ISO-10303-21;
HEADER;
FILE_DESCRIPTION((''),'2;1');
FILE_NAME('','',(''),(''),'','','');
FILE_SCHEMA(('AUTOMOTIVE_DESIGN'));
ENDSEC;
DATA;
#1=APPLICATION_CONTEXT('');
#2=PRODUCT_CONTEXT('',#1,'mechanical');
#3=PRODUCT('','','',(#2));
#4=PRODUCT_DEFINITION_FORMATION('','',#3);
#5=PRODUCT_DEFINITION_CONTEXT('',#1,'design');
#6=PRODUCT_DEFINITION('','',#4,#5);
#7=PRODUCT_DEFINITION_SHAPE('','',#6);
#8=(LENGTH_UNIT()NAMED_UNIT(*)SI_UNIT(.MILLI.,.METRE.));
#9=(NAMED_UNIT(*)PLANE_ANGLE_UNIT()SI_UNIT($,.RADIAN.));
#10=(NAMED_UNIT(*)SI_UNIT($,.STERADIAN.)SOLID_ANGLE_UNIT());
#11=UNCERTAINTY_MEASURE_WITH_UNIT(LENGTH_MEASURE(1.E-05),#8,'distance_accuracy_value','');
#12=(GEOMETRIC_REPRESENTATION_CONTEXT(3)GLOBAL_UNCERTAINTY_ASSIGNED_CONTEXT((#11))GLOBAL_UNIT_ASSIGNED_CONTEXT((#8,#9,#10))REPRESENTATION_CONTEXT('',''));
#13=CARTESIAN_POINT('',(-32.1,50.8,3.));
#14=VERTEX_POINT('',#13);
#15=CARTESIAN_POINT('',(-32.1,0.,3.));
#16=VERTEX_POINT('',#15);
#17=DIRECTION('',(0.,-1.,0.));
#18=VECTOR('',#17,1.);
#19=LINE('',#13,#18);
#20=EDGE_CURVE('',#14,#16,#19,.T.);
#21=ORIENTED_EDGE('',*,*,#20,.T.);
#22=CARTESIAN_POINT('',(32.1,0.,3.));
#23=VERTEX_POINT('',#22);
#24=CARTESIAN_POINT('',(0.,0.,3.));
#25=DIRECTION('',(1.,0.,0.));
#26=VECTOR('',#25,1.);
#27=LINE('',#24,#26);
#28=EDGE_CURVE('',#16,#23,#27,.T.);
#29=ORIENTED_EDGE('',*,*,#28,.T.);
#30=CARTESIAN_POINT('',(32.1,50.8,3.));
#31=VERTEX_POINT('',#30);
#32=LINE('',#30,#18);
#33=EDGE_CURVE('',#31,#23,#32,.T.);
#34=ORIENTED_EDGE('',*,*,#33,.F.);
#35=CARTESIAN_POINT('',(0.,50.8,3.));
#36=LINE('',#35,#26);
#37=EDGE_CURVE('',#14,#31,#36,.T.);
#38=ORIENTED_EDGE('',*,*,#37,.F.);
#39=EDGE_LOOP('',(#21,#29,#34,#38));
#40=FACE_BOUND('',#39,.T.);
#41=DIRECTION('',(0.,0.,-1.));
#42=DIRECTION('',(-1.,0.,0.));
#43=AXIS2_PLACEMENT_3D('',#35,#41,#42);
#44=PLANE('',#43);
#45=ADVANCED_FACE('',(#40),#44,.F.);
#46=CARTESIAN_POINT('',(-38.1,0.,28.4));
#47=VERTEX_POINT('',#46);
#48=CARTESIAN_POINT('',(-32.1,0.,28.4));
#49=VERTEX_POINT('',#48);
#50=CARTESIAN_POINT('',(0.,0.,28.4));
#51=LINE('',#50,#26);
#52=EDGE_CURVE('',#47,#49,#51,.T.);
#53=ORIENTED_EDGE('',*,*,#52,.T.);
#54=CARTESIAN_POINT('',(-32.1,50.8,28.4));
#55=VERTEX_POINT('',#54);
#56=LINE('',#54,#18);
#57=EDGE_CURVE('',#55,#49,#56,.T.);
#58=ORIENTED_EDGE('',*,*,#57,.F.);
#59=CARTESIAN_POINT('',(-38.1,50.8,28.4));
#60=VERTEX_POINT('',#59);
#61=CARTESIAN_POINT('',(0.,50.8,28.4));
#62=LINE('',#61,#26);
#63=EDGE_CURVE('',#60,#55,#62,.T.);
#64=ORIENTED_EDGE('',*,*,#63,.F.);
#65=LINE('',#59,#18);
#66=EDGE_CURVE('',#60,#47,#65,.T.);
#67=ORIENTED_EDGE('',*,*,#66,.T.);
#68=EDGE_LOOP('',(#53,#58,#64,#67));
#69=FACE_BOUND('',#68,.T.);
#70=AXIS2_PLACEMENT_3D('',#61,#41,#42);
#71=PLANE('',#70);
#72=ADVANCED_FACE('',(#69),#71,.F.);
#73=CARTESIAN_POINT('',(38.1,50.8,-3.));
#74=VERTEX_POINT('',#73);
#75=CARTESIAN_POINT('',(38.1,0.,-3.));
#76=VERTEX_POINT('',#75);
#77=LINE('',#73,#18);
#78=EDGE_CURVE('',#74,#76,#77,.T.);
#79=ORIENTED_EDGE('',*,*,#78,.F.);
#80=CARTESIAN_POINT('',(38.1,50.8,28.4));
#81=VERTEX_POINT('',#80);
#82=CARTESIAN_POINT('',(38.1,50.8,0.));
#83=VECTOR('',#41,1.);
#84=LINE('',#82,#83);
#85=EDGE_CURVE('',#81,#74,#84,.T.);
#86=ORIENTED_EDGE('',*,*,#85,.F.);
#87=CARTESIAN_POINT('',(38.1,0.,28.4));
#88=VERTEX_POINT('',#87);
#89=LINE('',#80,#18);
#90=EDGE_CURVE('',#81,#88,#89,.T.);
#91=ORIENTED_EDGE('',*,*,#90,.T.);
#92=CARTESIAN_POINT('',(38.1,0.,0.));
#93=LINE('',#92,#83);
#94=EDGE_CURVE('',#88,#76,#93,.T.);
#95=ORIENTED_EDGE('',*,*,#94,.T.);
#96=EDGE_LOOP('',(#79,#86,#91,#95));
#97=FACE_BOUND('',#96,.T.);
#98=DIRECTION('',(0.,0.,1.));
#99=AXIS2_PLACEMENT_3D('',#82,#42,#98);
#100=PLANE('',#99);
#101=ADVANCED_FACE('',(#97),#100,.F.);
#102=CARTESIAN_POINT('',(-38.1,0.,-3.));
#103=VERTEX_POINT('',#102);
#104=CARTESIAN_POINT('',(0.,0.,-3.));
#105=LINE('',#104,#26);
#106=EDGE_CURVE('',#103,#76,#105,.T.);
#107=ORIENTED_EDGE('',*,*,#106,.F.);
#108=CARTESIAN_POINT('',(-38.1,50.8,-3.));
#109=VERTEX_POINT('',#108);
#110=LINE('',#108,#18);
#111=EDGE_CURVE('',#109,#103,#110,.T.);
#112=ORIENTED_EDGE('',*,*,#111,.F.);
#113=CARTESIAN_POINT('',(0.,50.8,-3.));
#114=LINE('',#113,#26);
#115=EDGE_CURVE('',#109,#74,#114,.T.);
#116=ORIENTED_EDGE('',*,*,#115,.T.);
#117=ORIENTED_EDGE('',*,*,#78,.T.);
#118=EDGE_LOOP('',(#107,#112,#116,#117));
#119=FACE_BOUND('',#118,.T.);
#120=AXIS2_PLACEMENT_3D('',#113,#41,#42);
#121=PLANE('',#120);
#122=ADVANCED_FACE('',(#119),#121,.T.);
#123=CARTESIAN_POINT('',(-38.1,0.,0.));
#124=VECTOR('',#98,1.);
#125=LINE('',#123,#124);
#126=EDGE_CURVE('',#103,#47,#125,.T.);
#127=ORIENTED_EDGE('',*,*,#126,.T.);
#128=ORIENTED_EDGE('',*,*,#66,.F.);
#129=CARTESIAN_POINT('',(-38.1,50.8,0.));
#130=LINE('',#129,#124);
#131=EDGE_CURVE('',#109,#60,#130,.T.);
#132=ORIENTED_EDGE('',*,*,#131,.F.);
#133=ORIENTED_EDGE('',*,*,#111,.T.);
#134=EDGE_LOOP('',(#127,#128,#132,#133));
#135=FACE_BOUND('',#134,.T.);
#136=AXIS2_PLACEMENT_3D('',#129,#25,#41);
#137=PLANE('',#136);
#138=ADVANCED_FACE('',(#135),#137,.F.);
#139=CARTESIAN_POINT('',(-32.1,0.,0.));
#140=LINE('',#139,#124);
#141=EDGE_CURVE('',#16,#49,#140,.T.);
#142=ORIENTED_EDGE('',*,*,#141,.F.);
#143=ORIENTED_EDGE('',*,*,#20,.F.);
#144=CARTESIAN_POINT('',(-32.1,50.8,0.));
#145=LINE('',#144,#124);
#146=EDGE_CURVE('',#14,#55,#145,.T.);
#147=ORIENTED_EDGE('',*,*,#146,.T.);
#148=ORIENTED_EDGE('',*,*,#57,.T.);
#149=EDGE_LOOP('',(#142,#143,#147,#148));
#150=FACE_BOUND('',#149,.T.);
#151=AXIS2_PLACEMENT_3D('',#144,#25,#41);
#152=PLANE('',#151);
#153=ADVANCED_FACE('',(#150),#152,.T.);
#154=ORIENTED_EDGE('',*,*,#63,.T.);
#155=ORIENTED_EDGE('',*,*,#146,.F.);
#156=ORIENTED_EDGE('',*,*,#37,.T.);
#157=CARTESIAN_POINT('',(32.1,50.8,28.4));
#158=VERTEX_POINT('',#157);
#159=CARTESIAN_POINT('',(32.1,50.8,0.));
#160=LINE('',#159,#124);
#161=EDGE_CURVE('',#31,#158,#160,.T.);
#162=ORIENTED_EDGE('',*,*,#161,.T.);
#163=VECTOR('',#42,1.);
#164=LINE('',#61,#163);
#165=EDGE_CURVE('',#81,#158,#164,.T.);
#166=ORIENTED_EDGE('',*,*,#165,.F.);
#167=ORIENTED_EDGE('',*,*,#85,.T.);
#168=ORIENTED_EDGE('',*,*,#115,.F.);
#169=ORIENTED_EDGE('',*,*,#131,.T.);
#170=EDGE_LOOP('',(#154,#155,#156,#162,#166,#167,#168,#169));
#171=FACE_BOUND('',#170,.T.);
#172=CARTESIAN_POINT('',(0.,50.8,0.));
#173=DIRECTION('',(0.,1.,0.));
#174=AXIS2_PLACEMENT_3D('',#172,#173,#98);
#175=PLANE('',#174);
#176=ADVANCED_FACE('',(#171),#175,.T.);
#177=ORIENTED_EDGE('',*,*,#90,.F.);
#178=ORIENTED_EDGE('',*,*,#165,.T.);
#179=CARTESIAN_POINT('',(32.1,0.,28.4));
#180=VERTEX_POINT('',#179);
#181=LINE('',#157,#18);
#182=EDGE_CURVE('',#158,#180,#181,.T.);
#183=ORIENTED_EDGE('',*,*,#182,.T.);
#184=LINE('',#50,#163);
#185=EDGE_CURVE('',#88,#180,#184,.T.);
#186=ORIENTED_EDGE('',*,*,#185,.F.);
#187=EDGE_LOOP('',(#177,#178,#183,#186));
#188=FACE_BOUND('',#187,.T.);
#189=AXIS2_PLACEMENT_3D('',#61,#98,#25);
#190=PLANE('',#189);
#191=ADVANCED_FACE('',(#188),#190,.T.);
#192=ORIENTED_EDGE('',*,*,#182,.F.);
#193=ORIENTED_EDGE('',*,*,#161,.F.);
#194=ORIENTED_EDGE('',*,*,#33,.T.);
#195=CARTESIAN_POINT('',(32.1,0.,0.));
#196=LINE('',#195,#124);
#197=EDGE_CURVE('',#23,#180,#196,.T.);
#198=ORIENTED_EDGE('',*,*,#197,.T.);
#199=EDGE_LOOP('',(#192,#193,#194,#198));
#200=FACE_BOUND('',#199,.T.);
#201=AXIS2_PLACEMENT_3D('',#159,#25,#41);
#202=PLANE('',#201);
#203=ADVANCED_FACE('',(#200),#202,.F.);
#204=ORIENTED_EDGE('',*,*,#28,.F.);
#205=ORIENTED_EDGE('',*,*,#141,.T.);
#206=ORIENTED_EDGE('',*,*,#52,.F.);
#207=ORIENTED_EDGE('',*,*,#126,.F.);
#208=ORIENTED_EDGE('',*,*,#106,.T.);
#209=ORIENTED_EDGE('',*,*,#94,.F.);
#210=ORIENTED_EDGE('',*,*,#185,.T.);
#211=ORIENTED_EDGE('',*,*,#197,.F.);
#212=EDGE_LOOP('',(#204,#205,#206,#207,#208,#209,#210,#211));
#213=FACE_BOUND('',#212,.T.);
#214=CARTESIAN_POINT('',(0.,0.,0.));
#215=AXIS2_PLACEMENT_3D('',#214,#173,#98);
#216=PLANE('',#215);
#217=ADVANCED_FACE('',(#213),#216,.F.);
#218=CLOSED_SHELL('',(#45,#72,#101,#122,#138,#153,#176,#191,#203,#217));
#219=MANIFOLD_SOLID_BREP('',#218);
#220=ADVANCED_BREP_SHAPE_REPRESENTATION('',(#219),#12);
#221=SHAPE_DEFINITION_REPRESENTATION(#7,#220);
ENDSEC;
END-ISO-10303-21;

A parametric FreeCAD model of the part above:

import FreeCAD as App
import Part
import Sketcher

doc = App.newDocument("Part")
params = doc.addObject("Spreadsheet::Sheet", "Params")
for row, (alias, value) in enumerate([
    ("sketch1_width", "6 mm"),
    ("sketch1_width2", "64.2 mm"),
    ("sketch1_height", "25.4 mm"),
    ("sketch1_height2", "31.4 mm"),
    ("pad1_length", "50.8 mm"),
], start=1):
    params.set(f"A{row}", alias)
    params.set(f"B{row}", "=" + value)
    params.setAlias(f"B{row}", alias)

body = doc.addObject("PartDesign::Body", "Body")

# Sketch on XZ plane
sketch1 = doc.addObject("Sketcher::SketchObject", "Sketch")
body.addObject(sketch1)
sketch1.AttachmentSupport = (doc.XZ_Plane, [""])
sketch1.MapMode = "FlatFace"
sketch1.addGeometry([
    Part.LineSegment(App.Vector(-38.1, 28.4, 0), App.Vector(-32.1, 28.4, 0)),  # 0
    Part.LineSegment(App.Vector(-32.1, 28.4, 0), App.Vector(-32.1, 3, 0)),  # 1
    Part.LineSegment(App.Vector(-32.1, 3, 0), App.Vector(32.1, 3, 0)),  # 2
    Part.LineSegment(App.Vector(32.1, 3, 0), App.Vector(32.1, 28.4, 0)),  # 3
    Part.LineSegment(App.Vector(32.1, 28.4, 0), App.Vector(38.1, 28.4, 0)),  # 4
    Part.LineSegment(App.Vector(38.1, 28.4, 0), App.Vector(38.1, -3, 0)),  # 5
    Part.LineSegment(App.Vector(38.1, -3, 0), App.Vector(-38.1, -3, 0)),  # 6
    Part.LineSegment(App.Vector(-38.1, -3, 0), App.Vector(-38.1, 28.4, 0)),  # 7
], False)
sketch1.addConstraint([
    Sketcher.Constraint("Coincident", 0, 2, 1, 1),
    Sketcher.Constraint("Coincident", 1, 2, 2, 1),
    Sketcher.Constraint("Coincident", 2, 2, 3, 1),
    Sketcher.Constraint("Coincident", 3, 2, 4, 1),
    Sketcher.Constraint("Coincident", 4, 2, 5, 1),
    Sketcher.Constraint("Coincident", 5, 2, 6, 1),
    Sketcher.Constraint("Coincident", 6, 2, 7, 1),
    Sketcher.Constraint("Coincident", 7, 2, 0, 1),
    Sketcher.Constraint("Horizontal", 0),
    Sketcher.Constraint("Vertical", 1),
    Sketcher.Constraint("Horizontal", 2),
    Sketcher.Constraint("Vertical", 3),
    Sketcher.Constraint("Horizontal", 4),
    Sketcher.Constraint("Vertical", 5),
    Sketcher.Constraint("Horizontal", 6),
    Sketcher.Constraint("Vertical", 7),
    Sketcher.Constraint("Symmetric", 0, 2, 3, 2, -2),
    Sketcher.Constraint("Equal", 0, 4),
    Sketcher.Constraint("DistanceX", 0, 1, 0, 2, 6.0),
    Sketcher.Constraint("DistanceX", 2, 1, 2, 2, 64.2),
    Sketcher.Constraint("DistanceY", 1, 2, 1, 1, 25.4),
    Sketcher.Constraint("DistanceY", 5, 2, 5, 1, 31.4),
    Sketcher.Constraint("DistanceY", -1, 1, 1, 2, 3.0),
])
sketch1.setExpression("Constraints[18]", "Params.sketch1_width")
sketch1.setExpression("Constraints[19]", "Params.sketch1_width2")
sketch1.setExpression("Constraints[20]", "Params.sketch1_height")
sketch1.setExpression("Constraints[21]", "Params.sketch1_height2")
pad1 = doc.addObject("PartDesign::Pad", "Pad")
body.addObject(pad1)
pad1.Profile = sketch1
pad1.setExpression("Length", "Params.pad1_length")
pad1.Reversed = True

doc.recompute()
